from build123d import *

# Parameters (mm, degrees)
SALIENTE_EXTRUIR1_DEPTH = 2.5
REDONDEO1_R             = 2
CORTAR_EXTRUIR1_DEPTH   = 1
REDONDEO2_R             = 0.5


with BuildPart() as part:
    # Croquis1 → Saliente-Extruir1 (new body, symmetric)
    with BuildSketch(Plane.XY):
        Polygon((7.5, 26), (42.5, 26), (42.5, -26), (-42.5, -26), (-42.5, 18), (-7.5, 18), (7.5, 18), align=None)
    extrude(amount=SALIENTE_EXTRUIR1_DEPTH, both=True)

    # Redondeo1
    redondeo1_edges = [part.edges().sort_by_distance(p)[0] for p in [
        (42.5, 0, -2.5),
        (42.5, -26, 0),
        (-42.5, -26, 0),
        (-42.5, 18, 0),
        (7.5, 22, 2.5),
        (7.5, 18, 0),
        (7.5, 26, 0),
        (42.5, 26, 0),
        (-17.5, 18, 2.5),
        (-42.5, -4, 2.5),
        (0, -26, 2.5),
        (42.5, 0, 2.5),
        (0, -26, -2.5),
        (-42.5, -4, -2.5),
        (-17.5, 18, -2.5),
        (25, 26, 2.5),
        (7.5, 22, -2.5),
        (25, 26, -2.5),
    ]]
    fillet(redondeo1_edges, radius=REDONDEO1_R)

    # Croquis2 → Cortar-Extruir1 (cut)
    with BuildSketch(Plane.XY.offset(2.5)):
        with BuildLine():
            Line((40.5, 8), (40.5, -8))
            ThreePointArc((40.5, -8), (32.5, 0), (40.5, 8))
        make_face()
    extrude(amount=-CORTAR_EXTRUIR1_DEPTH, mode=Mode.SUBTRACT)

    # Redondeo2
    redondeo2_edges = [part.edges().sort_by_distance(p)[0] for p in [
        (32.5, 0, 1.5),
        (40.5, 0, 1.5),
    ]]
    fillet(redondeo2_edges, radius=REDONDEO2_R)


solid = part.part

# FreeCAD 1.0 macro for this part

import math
import FreeCAD as App
import Part
import Sketcher
Q = App.Units.Quantity


def edges_at(feature, points):
    """Names of the edges that pass closest to the given points."""
    edges = feature.Shape.Edges
    near = lambda p: min(range(len(edges)), key=lambda i: edges[i].distToShape(Part.Vertex(*p))[0])
    return sorted({f"Edge{near(p) + 1}" for p in points})

doc = App.newDocument("Part")
body = doc.addObject("PartDesign::Body", "Body")

# Sketch on XY plane
sketch1 = body.newObject("Sketcher::SketchObject", "Sketch")
sketch1.AttachmentSupport = (doc.getObject("XY_Plane"), [""])
sketch1.MapMode = "FlatFace"
sketch1.addGeometry([
    Part.LineSegment(App.Vector(42, 26, 0), App.Vector(8, 26, 0)),  # 0
    Part.LineSegment(App.Vector(8, 26, 0), App.Vector(8, 18, 0)),  # 1
    Part.LineSegment(App.Vector(8, 18, 0), App.Vector(-42, 18, 0)),  # 2
    Part.LineSegment(App.Vector(-42, 18, 0), App.Vector(-42, -26, 0)),  # 3
    Part.LineSegment(App.Vector(-42, -26, 0), App.Vector(42, -26, 0)),  # 4
    Part.LineSegment(App.Vector(42, -26, 0), App.Vector(42, 26, 0)),  # 5
], False)
sketch1.addConstraint([
    Sketcher.Constraint("Coincident", 0, 2, 1, 1),
    Sketcher.Constraint("Coincident", 1, 2, 2, 1),
    Sketcher.Constraint("Coincident", 2, 2, 3, 1),
    Sketcher.Constraint("Coincident", 3, 2, 4, 1),
    Sketcher.Constraint("Coincident", 4, 2, 5, 1),
    Sketcher.Constraint("Coincident", 5, 2, 0, 1),
    Sketcher.Constraint("Horizontal", 0),
    Sketcher.Constraint("Vertical", 1),
    Sketcher.Constraint("Horizontal", 2),
    Sketcher.Constraint("Vertical", 3),
    Sketcher.Constraint("Horizontal", 4),
    Sketcher.Constraint("Vertical", 5),
    Sketcher.Constraint("Symmetric", 3, 2, 5, 2, -1, 1),
    Sketcher.Constraint("DistanceX", 0, 2, 0, 1, Q("35 mm")),
    Sketcher.Constraint("DistanceX", 2, 2, 2, 1, Q("50 mm")),
    Sketcher.Constraint("DistanceY", 1, 2, 1, 1, Q("8 mm")),
    Sketcher.Constraint("DistanceY", 3, 2, 3, 1, Q("44 mm")),
])
pad1 = body.newObject("PartDesign::Pad", "Pad")
pad1.Profile = sketch1
pad1.Length = 5
pad1.Midplane = True
doc.recompute()

fillet = body.newObject("PartDesign::Fillet", "Fillet")
fillet.Base = (pad1, ["Edge1"])
fillet.UseAllEdges = True
fillet.Radius = 2

# Sketch on XY plane
sketch2 = body.newObject("Sketcher::SketchObject", "Sketch001")
sketch2.AttachmentSupport = (doc.getObject("XY_Plane"), [""])
sketch2.MapMode = "FlatFace"
sketch2.AttachmentOffset = App.Placement(App.Vector(0, 0, 2.5), App.Rotation())
sketch2.addGeometry([
    Part.LineSegment(App.Vector(40, -8, 0), App.Vector(40, 8, 0)),
    Part.ArcOfCircle(Part.Circle(App.Vector(40, 0, 0), App.Vector(0, 0, 1), 8), math.radians(90), math.radians(270)),
], False)
sketch2.addConstraint([
    Sketcher.Constraint("Coincident", 0, 1, 1, 2),
    Sketcher.Constraint("Coincident", 1, 1, 0, 2),
    Sketcher.Constraint("Vertical", 0),
    Sketcher.Constraint("PointOnObject", 1, 3, -1),
    Sketcher.Constraint("Vertical", 1, 3, 0, 1),
    Sketcher.Constraint("Radius", 1, Q("8 mm")),
    Sketcher.Constraint("DistanceX", -1, 1, 1, 3, Q("40.5 mm")),
])
pocket1 = body.newObject("PartDesign::Pocket", "Pocket")
pocket1.Profile = sketch2
pocket1.Length = 1
doc.recompute()

fillet2 = body.newObject("PartDesign::Fillet", "Fillet001")
fillet2.Base = (pocket1, edges_at(pocket1, [(32.5, 0, 1.5), (40.5, 0, 1.5)]))
fillet2.Radius = 0.5

doc.recompute()
